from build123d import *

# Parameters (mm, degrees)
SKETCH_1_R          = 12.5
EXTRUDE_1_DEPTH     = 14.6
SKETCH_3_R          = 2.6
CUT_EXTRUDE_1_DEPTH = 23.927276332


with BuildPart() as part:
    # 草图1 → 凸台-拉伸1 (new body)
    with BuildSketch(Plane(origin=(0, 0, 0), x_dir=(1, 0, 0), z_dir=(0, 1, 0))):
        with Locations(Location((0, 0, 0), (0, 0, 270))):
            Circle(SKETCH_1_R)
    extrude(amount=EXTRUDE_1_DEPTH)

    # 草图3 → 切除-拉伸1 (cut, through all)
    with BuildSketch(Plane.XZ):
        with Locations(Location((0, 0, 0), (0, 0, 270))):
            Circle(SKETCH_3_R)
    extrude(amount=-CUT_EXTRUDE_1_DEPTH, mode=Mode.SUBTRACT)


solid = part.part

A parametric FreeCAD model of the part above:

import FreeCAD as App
import Part
import Sketcher
from FreeCAD import Vector

doc = App.newDocument("Part")
body = doc.addObject("PartDesign::Body", "Body")

# Sketch on XZ plane
sketch1 = body.newObject("Sketcher::SketchObject", "Sketch")
sketch1.AttachmentSupport = (doc.getObject("XZ_Plane"), [""])
sketch1.MapMode = "FlatFace"
sketch1.addGeometry(Part.Circle(Vector(0, 0, 0), Vector(0, 0, 1), 12), False)
sketch1.addConstraint(Sketcher.Constraint("Coincident", 0, 3, -1, 1))
sketch1.addConstraint(Sketcher.Constraint("Diameter", 0, 25.0))
pad1 = body.newObject("PartDesign::Pad", "Pad")
pad1.Profile = sketch1
pad1.Length = 14.6
pad1.Reversed = True

# Sketch on XZ plane
sketch2 = body.newObject("Sketcher::SketchObject", "Sketch001")
sketch2.AttachmentSupport = (doc.getObject("XZ_Plane"), [""])
sketch2.MapMode = "FlatFace"
sketch2.addGeometry(Part.Circle(Vector(0, 0, 0), Vector(0, 0, 1), 2.6), False)
sketch2.addConstraint(Sketcher.Constraint("Coincident", 0, 3, -1, 1))
sketch2.addConstraint(Sketcher.Constraint("Diameter", 0, 5.2))
pocket1 = body.newObject("PartDesign::Pocket", "Pocket")
pocket1.Profile = sketch2
pocket1.Type = "ThroughAll"

doc.recompute()
